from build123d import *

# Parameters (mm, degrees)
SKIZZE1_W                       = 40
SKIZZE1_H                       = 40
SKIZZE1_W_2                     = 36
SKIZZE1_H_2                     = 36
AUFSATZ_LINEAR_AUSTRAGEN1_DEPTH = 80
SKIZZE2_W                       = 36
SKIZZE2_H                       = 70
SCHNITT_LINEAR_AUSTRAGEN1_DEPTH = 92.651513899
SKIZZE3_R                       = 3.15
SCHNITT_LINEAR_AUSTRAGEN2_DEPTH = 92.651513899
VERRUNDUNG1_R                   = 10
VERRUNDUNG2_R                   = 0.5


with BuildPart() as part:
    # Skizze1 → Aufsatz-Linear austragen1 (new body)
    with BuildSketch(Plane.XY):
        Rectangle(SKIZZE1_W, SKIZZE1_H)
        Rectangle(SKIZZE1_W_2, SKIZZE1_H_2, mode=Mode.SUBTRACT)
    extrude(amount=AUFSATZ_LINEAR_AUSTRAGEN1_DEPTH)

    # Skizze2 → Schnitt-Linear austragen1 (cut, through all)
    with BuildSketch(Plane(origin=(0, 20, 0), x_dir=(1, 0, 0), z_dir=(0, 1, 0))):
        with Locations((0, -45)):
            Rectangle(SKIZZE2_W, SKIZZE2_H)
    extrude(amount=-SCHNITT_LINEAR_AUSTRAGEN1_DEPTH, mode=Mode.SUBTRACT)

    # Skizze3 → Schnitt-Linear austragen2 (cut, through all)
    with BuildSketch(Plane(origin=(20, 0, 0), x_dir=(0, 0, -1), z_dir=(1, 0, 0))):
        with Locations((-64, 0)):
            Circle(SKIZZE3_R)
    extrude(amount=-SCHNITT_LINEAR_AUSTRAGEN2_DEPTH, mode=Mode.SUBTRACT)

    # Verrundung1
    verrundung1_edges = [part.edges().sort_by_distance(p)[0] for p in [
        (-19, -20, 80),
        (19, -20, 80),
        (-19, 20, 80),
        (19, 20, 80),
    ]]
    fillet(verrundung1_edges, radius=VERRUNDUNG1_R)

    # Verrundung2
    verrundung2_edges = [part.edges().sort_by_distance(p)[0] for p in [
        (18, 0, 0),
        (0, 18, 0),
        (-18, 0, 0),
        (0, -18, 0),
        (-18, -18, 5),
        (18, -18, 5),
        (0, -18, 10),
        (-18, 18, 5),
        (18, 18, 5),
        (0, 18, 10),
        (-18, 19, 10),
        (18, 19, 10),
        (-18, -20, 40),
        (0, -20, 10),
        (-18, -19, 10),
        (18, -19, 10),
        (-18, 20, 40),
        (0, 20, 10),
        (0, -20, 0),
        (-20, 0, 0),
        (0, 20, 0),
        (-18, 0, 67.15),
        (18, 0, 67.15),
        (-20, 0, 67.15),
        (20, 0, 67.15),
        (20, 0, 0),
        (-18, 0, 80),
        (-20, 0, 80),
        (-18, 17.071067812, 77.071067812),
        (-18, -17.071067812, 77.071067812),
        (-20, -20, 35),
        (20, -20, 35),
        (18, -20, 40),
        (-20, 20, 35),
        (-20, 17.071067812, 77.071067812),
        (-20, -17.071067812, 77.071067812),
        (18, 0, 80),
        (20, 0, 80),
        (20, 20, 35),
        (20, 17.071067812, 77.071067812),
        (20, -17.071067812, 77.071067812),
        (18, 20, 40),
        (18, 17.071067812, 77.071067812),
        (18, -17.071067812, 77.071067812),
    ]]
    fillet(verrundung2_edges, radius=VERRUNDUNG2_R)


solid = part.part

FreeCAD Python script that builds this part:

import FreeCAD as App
import Part
import Sketcher
Q = App.Units.Quantity


def edges_at(feature, points):
    """Names of the edges that pass closest to the given points."""
    edges = feature.Shape.Edges
    near = lambda p: min(range(len(edges)), key=lambda i: edges[i].distToShape(Part.Vertex(*p))[0])
    return sorted({f"Edge{near(p) + 1}" for p in points})


def add_polygon(sketch, points):
    """Adds a closed chain of lines whose ends are joined by coincident constraints."""
    first, n = sketch.GeometryCount, len(points)
    for a, b in zip(points, points[1:] + points[:1]):
        sketch.addGeometry(Part.LineSegment(App.Vector(*a, 0), App.Vector(*b, 0)), False)
    for i in range(n):
        sketch.addConstraint(Sketcher.Constraint("Coincident", first + i, 2, first + (i + 1) % n, 1))

doc = App.newDocument("Part")
body = doc.addObject("PartDesign::Body", "Body")

# Sketch on XY plane
sketch1 = body.newObject("Sketcher::SketchObject", "Sketch")
sketch1.AttachmentSupport = (doc.getObject("XY_Plane"), [""])
sketch1.MapMode = "FlatFace"
add_polygon(sketch1, [(-20, 20), (-20, -20), (20, -20), (20, 20)])  # lines 0-3
add_polygon(sketch1, [(18, -18), (-18, -18), (-18, 18), (18, 18)])  # lines 4-7
sketch1.addConstraint([
    Sketcher.Constraint("Vertical", 0),
    Sketcher.Constraint("Horizontal", 1),
    Sketcher.Constraint("Vertical", 2),
    Sketcher.Constraint("Horizontal", 3),
    Sketcher.Constraint("Horizontal", 4),
    Sketcher.Constraint("Vertical", 5),
    Sketcher.Constraint("Horizontal", 6),
    Sketcher.Constraint("Vertical", 7),
    Sketcher.Constraint("Symmetric", 0, 2, 2, 2, -1, 1),
    Sketcher.Constraint("Symmetric", 4, 2, 6, 2, -1, 1),
    Sketcher.Constraint("Equal", 3, 0),
    Sketcher.Constraint("Equal", 6, 5),
    Sketcher.Constraint("DistanceX", 1, 1, 1, 2, Q("40 mm")),
    Sketcher.Constraint("DistanceX", 4, 2, 4, 1, Q("36 mm")),
])
pad1 = body.newObject("PartDesign::Pad", "Pad")
pad1.Profile = sketch1
pad1.Length = 80

# Sketch on XZ plane
sketch2 = body.newObject("Sketcher::SketchObject", "Sketch001")
sketch2.AttachmentSupport = (doc.getObject("XZ_Plane"), [""])
sketch2.MapMode = "FlatFace"
sketch2.AttachmentOffset = App.Placement(App.Vector(0, 0, -20), App.Rotation())
add_polygon(sketch2, [(-18, 10), (-18, 80), (18, 80), (18, 10)])  # lines 0-3
sketch2.addConstraint([
    Sketcher.Constraint("Vertical", 0),
    Sketcher.Constraint("Horizontal", 1),
    Sketcher.Constraint("Vertical", 2),
    Sketcher.Constraint("Horizontal", 3),
    Sketcher.Constraint("DistanceX", 1, 1, 1, 2, Q("36 mm")),
    Sketcher.Constraint("DistanceY", 0, 1, 0, 2, Q("70 mm")),
    Sketcher.Constraint("DistanceX", 0, 2, -1, 1, Q("18 mm")),
    Sketcher.Constraint("DistanceY", -1, 1, 0, 2, Q("80 mm")),
])
pocket1 = body.newObject("PartDesign::Pocket", "Pocket")
pocket1.Profile = sketch2
pocket1.Type = "ThroughAll"
pocket1.Reversed = True

# Sketch on YZ plane
sketch3 = body.newObject("Sketcher::SketchObject", "Sketch002")
sketch3.AttachmentSupport = (doc.getObject("YZ_Plane"), [""])
sketch3.MapMode = "FlatFace"
sketch3.AttachmentOffset = App.Placement(App.Vector(0, 0, 20), App.Rotation())
sketch3.addGeometry(Part.Circle(App.Vector(0, 64, 0), App.Vector(0, 0, 1), 3.1), False)
sketch3.addConstraint([
    Sketcher.Constraint("PointOnObject", 0, 3, -2),
    Sketcher.Constraint("Diameter", 0, Q("6.3 mm")),
    Sketcher.Constraint("DistanceY", -1, 1, 0, 3, Q("64 mm")),
])
pocket2 = body.newObject("PartDesign::Pocket", "Pocket001")
pocket2.Profile = sketch3
pocket2.Type = "ThroughAll"
doc.recompute()

fillet = body.newObject("PartDesign::Fillet", "Fillet")
fillet.Base = (pocket2, edges_at(pocket2, [
    (-19, -20, 80),
    (19, -20, 80),
    (-19, 20, 80),
    (19, 20, 80),
]))
fillet.Radius = 10
doc.recompute()

fillet2 = body.newObject("PartDesign::Fillet", "Fillet001")
fillet2.Base = (fillet, ["Edge1"])
fillet2.UseAllEdges = True
fillet2.Radius = 0.5

doc.recompute()
